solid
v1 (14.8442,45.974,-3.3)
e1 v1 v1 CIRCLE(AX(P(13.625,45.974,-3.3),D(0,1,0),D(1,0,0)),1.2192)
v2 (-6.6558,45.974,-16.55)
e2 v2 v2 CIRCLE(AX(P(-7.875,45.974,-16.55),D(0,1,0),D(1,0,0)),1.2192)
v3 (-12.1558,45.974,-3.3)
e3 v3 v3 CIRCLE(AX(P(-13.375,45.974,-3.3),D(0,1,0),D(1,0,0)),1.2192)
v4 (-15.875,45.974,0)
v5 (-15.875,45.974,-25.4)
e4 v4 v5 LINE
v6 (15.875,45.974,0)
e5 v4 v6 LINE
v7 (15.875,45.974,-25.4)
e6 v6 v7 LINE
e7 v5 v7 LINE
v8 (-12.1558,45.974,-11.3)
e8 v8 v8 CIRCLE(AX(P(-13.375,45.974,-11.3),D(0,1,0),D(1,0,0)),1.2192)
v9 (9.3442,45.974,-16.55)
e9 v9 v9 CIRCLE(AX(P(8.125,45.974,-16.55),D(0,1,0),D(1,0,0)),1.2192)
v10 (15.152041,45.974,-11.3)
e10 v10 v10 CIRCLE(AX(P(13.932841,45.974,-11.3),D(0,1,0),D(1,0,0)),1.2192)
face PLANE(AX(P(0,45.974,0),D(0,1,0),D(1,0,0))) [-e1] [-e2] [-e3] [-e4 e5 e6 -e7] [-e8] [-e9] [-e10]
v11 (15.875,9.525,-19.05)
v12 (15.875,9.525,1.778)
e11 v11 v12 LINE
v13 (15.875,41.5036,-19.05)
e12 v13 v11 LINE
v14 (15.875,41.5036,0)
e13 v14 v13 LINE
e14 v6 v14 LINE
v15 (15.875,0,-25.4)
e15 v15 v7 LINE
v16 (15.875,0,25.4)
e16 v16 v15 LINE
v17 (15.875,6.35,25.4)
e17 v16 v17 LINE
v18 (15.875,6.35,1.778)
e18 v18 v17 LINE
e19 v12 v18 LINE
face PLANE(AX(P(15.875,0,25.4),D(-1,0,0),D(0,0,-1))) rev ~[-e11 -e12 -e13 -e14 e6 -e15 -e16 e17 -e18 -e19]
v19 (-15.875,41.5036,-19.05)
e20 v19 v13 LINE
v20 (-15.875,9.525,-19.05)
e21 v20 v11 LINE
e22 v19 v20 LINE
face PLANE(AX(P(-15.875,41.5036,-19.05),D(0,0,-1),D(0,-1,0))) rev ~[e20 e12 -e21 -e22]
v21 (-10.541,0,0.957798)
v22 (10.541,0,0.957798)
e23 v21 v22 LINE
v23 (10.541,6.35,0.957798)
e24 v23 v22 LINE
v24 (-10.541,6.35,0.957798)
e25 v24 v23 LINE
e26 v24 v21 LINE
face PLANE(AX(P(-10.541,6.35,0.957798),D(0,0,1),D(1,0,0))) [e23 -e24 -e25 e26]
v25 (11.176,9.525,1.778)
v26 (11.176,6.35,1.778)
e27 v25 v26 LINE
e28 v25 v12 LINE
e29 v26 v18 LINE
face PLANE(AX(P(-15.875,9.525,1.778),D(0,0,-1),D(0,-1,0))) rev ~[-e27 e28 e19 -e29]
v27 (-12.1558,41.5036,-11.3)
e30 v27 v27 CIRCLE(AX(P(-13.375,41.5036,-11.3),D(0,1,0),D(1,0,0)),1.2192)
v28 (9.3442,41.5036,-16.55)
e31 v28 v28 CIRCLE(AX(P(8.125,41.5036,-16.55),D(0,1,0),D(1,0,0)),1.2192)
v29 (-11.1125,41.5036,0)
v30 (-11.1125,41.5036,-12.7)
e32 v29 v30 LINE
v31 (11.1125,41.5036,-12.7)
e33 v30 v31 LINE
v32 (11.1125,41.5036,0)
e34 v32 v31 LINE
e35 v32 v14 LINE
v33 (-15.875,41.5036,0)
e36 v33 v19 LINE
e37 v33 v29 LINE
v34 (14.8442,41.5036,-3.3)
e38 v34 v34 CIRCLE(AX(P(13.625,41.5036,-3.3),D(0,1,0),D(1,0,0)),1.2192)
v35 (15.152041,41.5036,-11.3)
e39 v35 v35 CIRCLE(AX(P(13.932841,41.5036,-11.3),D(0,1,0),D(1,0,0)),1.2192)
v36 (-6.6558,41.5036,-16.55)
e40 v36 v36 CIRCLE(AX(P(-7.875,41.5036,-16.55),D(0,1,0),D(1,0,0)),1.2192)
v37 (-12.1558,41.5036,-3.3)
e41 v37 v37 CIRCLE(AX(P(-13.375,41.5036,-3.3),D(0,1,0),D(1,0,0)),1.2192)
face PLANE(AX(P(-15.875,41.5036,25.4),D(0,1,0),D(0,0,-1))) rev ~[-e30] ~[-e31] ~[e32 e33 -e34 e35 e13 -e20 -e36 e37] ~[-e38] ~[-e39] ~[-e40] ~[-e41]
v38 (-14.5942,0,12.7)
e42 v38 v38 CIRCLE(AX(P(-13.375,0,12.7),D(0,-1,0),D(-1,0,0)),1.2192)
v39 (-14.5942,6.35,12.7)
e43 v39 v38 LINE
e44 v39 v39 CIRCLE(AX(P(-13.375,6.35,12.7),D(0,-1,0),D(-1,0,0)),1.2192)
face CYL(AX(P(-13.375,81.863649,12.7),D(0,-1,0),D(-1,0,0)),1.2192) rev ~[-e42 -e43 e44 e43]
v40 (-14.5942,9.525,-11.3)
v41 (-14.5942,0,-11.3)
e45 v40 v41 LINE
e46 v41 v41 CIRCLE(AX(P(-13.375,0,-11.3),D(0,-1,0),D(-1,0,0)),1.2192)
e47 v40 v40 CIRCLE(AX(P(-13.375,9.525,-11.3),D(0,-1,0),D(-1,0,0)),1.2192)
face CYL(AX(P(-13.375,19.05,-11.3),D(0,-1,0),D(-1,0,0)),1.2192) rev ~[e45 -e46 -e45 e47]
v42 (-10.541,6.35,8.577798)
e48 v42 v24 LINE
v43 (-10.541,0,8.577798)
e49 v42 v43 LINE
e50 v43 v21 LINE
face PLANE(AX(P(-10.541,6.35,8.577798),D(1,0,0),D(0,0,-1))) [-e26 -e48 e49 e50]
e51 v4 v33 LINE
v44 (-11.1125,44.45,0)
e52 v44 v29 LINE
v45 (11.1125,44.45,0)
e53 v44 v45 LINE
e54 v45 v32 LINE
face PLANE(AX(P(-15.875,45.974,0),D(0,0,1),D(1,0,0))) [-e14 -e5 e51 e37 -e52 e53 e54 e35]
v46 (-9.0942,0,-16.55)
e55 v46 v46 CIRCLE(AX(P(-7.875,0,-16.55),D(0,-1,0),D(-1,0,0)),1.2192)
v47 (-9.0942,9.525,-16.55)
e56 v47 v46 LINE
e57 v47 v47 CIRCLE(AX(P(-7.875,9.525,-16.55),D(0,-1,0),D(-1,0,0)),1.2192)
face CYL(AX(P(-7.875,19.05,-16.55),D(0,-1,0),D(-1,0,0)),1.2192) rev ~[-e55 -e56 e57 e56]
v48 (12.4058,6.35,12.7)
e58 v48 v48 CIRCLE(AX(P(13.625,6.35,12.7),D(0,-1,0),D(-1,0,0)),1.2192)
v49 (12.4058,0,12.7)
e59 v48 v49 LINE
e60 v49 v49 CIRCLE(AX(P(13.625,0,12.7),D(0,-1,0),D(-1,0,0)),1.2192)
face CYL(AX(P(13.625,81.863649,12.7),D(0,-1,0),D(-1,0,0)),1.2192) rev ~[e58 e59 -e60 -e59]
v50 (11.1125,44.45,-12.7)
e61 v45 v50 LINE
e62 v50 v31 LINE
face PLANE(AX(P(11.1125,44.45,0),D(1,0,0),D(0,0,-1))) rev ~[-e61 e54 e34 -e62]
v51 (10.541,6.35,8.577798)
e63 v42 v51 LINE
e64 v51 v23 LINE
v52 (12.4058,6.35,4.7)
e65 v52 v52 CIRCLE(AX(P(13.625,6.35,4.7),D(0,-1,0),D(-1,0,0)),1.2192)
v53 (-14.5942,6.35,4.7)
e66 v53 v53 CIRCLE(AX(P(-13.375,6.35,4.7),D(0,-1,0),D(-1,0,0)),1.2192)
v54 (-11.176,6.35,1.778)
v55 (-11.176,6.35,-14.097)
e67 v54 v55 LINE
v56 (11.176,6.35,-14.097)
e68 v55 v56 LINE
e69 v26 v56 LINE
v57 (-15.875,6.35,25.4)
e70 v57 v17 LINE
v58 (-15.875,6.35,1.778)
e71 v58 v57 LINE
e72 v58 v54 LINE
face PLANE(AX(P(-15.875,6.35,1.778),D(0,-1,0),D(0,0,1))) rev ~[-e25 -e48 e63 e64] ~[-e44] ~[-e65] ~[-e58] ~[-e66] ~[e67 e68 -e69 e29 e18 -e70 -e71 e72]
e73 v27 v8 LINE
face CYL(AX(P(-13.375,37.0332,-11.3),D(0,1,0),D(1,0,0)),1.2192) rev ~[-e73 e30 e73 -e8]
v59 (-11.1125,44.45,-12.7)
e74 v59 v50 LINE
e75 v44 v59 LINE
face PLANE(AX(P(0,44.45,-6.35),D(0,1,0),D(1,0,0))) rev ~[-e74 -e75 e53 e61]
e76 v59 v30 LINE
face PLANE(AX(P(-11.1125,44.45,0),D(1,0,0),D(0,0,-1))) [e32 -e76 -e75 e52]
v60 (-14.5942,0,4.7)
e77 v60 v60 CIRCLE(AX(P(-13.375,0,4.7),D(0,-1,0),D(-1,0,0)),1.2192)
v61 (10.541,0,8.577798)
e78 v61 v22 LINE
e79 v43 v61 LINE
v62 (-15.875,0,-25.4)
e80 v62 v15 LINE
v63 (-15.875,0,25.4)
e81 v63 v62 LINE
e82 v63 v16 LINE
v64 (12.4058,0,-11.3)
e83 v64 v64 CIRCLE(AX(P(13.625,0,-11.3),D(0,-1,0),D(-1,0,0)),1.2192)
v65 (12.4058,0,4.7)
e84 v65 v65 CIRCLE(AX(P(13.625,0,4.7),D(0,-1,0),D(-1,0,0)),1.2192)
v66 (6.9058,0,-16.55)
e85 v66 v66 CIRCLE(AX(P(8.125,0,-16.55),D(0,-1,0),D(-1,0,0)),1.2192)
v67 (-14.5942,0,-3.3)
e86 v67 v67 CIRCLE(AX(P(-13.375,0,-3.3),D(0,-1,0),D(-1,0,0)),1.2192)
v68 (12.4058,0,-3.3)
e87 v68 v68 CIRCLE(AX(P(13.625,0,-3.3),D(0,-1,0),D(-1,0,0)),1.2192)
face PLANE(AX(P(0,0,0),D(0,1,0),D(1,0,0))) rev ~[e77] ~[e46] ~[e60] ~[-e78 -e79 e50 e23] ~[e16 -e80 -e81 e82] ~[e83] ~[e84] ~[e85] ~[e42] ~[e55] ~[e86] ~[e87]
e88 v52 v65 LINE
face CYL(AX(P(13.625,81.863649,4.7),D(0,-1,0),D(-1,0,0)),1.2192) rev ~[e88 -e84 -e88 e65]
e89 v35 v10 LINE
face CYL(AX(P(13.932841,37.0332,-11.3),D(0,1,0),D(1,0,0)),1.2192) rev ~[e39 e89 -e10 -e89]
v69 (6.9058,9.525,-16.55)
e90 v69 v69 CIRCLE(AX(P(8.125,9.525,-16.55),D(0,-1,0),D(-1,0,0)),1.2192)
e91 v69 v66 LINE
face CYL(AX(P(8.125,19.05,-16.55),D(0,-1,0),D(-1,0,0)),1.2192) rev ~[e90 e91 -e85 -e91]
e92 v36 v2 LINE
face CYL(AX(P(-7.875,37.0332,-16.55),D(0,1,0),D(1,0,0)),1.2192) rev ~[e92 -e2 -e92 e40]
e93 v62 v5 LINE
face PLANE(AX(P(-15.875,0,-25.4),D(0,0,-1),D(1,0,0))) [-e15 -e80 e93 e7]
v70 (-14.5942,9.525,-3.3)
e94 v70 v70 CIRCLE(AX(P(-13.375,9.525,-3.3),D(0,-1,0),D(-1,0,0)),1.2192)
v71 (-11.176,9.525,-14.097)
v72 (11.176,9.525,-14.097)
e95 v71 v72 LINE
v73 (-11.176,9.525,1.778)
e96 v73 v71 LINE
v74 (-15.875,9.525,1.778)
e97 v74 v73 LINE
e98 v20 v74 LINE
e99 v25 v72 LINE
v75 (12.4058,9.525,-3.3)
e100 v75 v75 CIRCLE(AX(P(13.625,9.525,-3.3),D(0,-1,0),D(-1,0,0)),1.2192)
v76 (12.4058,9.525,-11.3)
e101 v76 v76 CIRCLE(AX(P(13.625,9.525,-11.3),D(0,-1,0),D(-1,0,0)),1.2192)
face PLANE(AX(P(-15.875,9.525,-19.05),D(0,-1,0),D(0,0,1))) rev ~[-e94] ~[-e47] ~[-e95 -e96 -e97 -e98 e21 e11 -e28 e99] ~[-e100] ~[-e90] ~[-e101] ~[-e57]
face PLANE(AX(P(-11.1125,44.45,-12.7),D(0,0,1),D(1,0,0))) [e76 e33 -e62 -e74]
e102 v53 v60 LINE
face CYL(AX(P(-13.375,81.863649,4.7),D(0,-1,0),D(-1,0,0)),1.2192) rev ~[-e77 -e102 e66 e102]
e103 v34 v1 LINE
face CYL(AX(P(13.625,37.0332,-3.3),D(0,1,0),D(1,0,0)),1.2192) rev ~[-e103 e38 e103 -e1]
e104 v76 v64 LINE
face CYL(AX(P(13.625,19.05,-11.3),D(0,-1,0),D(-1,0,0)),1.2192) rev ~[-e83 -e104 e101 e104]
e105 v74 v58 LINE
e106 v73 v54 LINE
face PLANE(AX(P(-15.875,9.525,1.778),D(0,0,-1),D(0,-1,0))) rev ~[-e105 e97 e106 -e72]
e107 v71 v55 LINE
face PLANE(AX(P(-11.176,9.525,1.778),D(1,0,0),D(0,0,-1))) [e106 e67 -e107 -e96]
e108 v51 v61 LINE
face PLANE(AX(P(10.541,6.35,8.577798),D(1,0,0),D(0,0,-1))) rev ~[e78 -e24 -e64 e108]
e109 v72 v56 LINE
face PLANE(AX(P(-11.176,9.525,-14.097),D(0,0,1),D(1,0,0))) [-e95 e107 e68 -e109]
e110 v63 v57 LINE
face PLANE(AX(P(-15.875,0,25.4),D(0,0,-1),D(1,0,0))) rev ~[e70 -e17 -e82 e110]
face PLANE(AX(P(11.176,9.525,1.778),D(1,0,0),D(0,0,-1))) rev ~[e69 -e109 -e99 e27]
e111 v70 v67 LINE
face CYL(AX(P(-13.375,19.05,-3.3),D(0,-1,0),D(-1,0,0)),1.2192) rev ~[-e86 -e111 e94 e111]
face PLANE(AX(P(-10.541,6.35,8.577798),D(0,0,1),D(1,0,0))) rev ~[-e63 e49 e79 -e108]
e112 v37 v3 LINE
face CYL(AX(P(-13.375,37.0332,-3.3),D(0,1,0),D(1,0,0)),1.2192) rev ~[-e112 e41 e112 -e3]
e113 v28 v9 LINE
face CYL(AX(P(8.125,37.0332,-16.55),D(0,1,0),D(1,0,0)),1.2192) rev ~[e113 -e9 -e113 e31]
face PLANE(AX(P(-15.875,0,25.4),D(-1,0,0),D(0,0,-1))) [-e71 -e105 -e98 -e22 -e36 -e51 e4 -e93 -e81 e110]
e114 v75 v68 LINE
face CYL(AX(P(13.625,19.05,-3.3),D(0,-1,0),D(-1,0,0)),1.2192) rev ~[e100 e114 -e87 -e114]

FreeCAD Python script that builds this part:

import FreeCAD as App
import Part
import Sketcher

V = App.Vector
Q = App.Units.Quantity

doc = App.newDocument("Part")
body = doc.addObject("PartDesign::Body", "Body")

sketch1 = body.newObject("Sketcher::SketchObject", "Sketch")
sketch1.AttachmentSupport = (doc.getObject("XZ_Plane"), [""])
sketch1.MapMode = "FlatFace"
sketch1.addGeometry([
    Part.LineSegment(V(-15.875, -25.4, 0), V(-15.875, 25.4, 0)),
    Part.LineSegment(V(-15.875, 25.4, 0), V(15.875, 25.4, 0)),
    Part.LineSegment(V(15.875, 25.4, 0), V(15.875, -25.4, 0)),
    Part.LineSegment(V(15.875, -25.4, 0), V(-15.875, -25.4, 0)),
], False)
sketch1.addConstraint([
    Sketcher.Constraint("Coincident", 0, 2, 1, 1),
    Sketcher.Constraint("Coincident", 1, 2, 2, 1),
    Sketcher.Constraint("Coincident", 2, 2, 3, 1),
    Sketcher.Constraint("Coincident", 3, 2, 0, 1),
    Sketcher.Constraint("Vertical", 0),
    Sketcher.Constraint("Horizontal", 1),
    Sketcher.Constraint("Vertical", 2),
    Sketcher.Constraint("Horizontal", 3),
    Sketcher.Constraint("Symmetric", 0, 2, 2, 2, -1, 1),
    Sketcher.Constraint("DistanceY", 0, 1, 0, 2, Q("2 in")),
    Sketcher.Constraint("DistanceX", 1, 1, 1, 2, Q("1.25 in")),
])
pad1 = body.newObject("PartDesign::Pad", "Pad")
pad1.Profile = sketch1
pad1.Length = Q("1.81 in")
pad1.Reversed = True

sketch2 = body.newObject("Sketcher::SketchObject", "Sketch001")
sketch2.AttachmentSupport = (doc.getObject("YZ_Plane"), [""])
sketch2.MapMode = "FlatFace"
sketch2.AttachmentOffset = App.Placement(V(0, 0, -0.625 * 25.4), App.Rotation())
sketch2.addGeometry([
    Part.LineSegment(V(6.35, 1.778, 0), V(6.35, 25.4, 0)),
    Part.LineSegment(V(6.35, 25.4, 0), V(41.5036, 25.4, 0)),
    Part.LineSegment(V(41.5036, 25.4, 0), V(41.5036, -19.05, 0)),
    Part.LineSegment(V(41.5036, -19.05, 0), V(9.525, -19.05, 0)),
    Part.LineSegment(V(9.525, -19.05, 0), V(9.525, 1.778, 0)),
    Part.LineSegment(V(9.525, 1.778, 0), V(6.35, 1.778, 0)),
], False)
sketch2.addConstraint([
    Sketcher.Constraint("Coincident", 0, 2, 1, 1),
    Sketcher.Constraint("Coincident", 1, 2, 2, 1),
    Sketcher.Constraint("Coincident", 2, 2, 3, 1),
    Sketcher.Constraint("Coincident", 3, 2, 4, 1),
    Sketcher.Constraint("Coincident", 4, 2, 5, 1),
    Sketcher.Constraint("Coincident", 5, 2, 0, 1),
    Sketcher.Constraint("Vertical", 0),
    Sketcher.Constraint("Horizontal", 1),
    Sketcher.Constraint("Vertical", 2),
    Sketcher.Constraint("Horizontal", 3),
    Sketcher.Constraint("Vertical", 4),
    Sketcher.Constraint("Horizontal", 5),
    Sketcher.Constraint("DistanceY", -1, 1, 0, 2, Q("1 in")),
    Sketcher.Constraint("DistanceY", 0, 1, 0, 2, Q("0.93 in")),
    Sketcher.Constraint("DistanceY", 2, 2, 2, 1, Q("1.75 in")),
    Sketcher.Constraint("DistanceX", 1, 1, 1, 2, Q("1.384 in")),
    Sketcher.Constraint("DistanceX", 3, 2, 3, 1, Q("1.259 in")),
    Sketcher.Constraint("DistanceX", -1, 1, 0, 2, Q("0.25 in")),
])
pocket1 = body.newObject("PartDesign::Pocket", "Pocket")
pocket1.Profile = sketch2
pocket1.Type = "ThroughAll"
pocket1.Reversed = True

sketch3 = body.newObject("Sketcher::SketchObject", "Sketch002")
sketch3.AttachmentSupport = (doc.getObject("XZ_Plane"), [""])
sketch3.MapMode = "FlatFace"
sketch3.AttachmentOffset = App.Placement(V(0, 0, -0.375 * 25.4), App.Rotation())
sketch3.addGeometry([
    Part.LineSegment(V(-11.176, -14.097, 0), V(-11.176, 1.778, 0)),
    Part.LineSegment(V(-11.176, 1.778, 0), V(11.176, 1.778, 0)),
    Part.LineSegment(V(11.176, 1.778, 0), V(11.176, -14.097, 0)),
    Part.LineSegment(V(11.176, -14.097, 0), V(-11.176, -14.097, 0)),
], False)
sketch3.addConstraint([
    Sketcher.Constraint("Coincident", 0, 2, 1, 1),
    Sketcher.Constraint("Coincident", 1, 2, 2, 1),
    Sketcher.Constraint("Coincident", 2, 2, 3, 1),
    Sketcher.Constraint("Coincident", 3, 2, 0, 1),
    Sketcher.Constraint("Vertical", 0),
    Sketcher.Constraint("Horizontal", 1),
    Sketcher.Constraint("Vertical", 2),
    Sketcher.Constraint("Horizontal", 3),
    Sketcher.Constraint("DistanceX", 1, 1, 1, 2, Q("0.88 in")),
    Sketcher.Constraint("DistanceY", 0, 1, 0, 2, Q("0.625 in")),
    Sketcher.Constraint("DistanceX", 0, 2, -1, 1, Q("0.44 in")),
    Sketcher.Constraint("DistanceY", -1, 1, 0, 2, Q("0.07 in")),
])
pocket2 = body.newObject("PartDesign::Pocket", "Pocket001")
pocket2.Profile = sketch3
pocket2.Length = Q("0.125 in")
pocket2.Reversed = True

sketch4 = body.newObject("Sketcher::SketchObject", "Sketch003")
sketch4.AttachmentSupport = (doc.getObject("XZ_Plane"), [""])
sketch4.MapMode = "FlatFace"
sketch4.AttachmentOffset = App.Placement(V(0, 0, -1.81 * 25.4), App.Rotation())
sketch4.addGeometry([
    Part.LineSegment(V(-15.875, 0, 0), V(-15.875, 25.4, 0)),
    Part.LineSegment(V(-15.875, 25.4, 0), V(15.875, 25.4, 0)),
    Part.LineSegment(V(15.875, 25.4, 0), V(15.875, 0, 0)),
    Part.LineSegment(V(15.875, 0, 0), V(-15.875, 0, 0)),
], False)
sketch4.addConstraint([
    Sketcher.Constraint("Coincident", 0, 2, 1, 1),
    Sketcher.Constraint("Coincident", 1, 2, 2, 1),
    Sketcher.Constraint("Coincident", 2, 2, 3, 1),
    Sketcher.Constraint("Coincident", 3, 2, 0, 1),
    Sketcher.Constraint("Vertical", 0),
    Sketcher.Constraint("Horizontal", 1),
    Sketcher.Constraint("Vertical", 2),
    Sketcher.Constraint("Horizontal", 3),
    Sketcher.Constraint("Symmetric", 2, 2, 3, 2, -1, 1),
    Sketcher.Constraint("DistanceY", 0, 1, 0, 2, Q("1 in")),
    Sketcher.Constraint("DistanceX", 1, 1, 1, 2, Q("1.25 in")),
])
pocket3 = body.newObject("PartDesign::Pocket", "Pocket002")
pocket3.Profile = sketch4
pocket3.Length = Q("0.176 in")
pocket3.Reversed = True

sketch5 = body.newObject("Sketcher::SketchObject", "Sketch004")
sketch5.AttachmentSupport = (doc.getObject("XZ_Plane"), [""])
sketch5.MapMode = "FlatFace"
sketch5.AttachmentOffset = App.Placement(V(0, 0, -1.75 * 25.4), App.Rotation())
sketch5.addGeometry([
    Part.LineSegment(V(-11.1125, -12.7, 0), V(-11.1125, 0, 0)),
    Part.LineSegment(V(-11.1125, 0, 0), V(11.1125, 0, 0)),
    Part.LineSegment(V(11.1125, 0, 0), V(11.1125, -12.7, 0)),
    Part.LineSegment(V(11.1125, -12.7, 0), V(-11.1125, -12.7, 0)),
], False)
sketch5.addConstraint([
    Sketcher.Constraint("Coincident", 0, 2, 1, 1),
    Sketcher.Constraint("Coincident", 1, 2, 2, 1),
    Sketcher.Constraint("Coincident", 2, 2, 3, 1),
    Sketcher.Constraint("Coincident", 3, 2, 0, 1),
    Sketcher.Constraint("Vertical", 0),
    Sketcher.Constraint("Horizontal", 1),
    Sketcher.Constraint("Vertical", 2),
    Sketcher.Constraint("Horizontal", 3),
    Sketcher.Constraint("Symmetric", 0, 2, 1, 2, -1, 1),
    Sketcher.Constraint("DistanceY", 0, 1, 0, 2, Q("0.5 in")),
    Sketcher.Constraint("DistanceX", 1, 1, 1, 2, Q("0.875 in")),
])
pocket4 = body.newObject("PartDesign::Pocket", "Pocket003")
pocket4.Profile = sketch5
pocket4.Length = Q("0.116 in")
pocket4.Reversed = True

sketch6 = body.newObject("Sketcher::SketchObject", "Sketch005")
sketch6.AttachmentSupport = (doc.getObject("XZ_Plane"), [""])
sketch6.MapMode = "FlatFace"
sketch6.AttachmentOffset = App.Placement(V(0, 0, -0.375 * 25.4), App.Rotation())
sketch6.addGeometry([
    Part.Circle(V(-13.375, -11.3, 0), V(0, 0, 1), 1.2192),
    Part.Circle(V(-13.375, -3.3, 0), V(0, 0, 1), 1.2192),
    Part.Circle(V(-7.875, -16.55, 0), V(0, 0, 1), 1.2192),
    Part.Circle(V(8.125, -16.55, 0), V(0, 0, 1), 1.2192),
    Part.Circle(V(13.625, -3.3, 0), V(0, 0, 1), 1.2192),
    Part.Circle(V(13.625, -11.3, 0), V(0, 0, 1), 1.2192),
], False)
sketch6.addConstraint([
    Sketcher.Constraint("Equal", 0, 1),
    Sketcher.Constraint("Equal", 1, 2),
    Sketcher.Constraint("Equal", 2, 3),
    Sketcher.Constraint("Equal", 3, 4),
    Sketcher.Constraint("Equal", 4, 5),
    Sketcher.Constraint("Horizontal", 2, 3, 3, 3),
    Sketcher.Constraint("Horizontal", 1, 3, 4, 3),
    Sketcher.Constraint("Horizontal", 0, 3, 5, 3),
    Sketcher.Constraint("Vertical", 0, 3, 1, 3),
    Sketcher.Constraint("Vertical", 4, 3, 5, 3),
    Sketcher.Constraint("Diameter", 0, Q("0.096 in")),
    Sketcher.Constraint("DistanceX", 0, 3, -1, 1, 13.375),
    Sketcher.Constraint("DistanceY", 0, 3, -1, 1, 11.3),
    Sketcher.Constraint("DistanceY", 1, 3, -1, 1, 3.3),
    Sketcher.Constraint("DistanceX", 2, 3, -1, 1, 7.875),
    Sketcher.Constraint("DistanceY", 2, 3, -1, 1, 16.55),
    Sketcher.Constraint("DistanceX", -1, 1, 3, 3, 8.125),
    Sketcher.Constraint("DistanceX", -1, 1, 4, 3, 13.625),
])
doc.recompute()
hole = body.newObject("PartDesign::Hole", "Hole")
hole.Profile = sketch6
hole.ThreadType = "None"
hole.Diameter = Q("0.096 in")
hole.DepthType = "Dimension"
hole.Depth = Q("0.375 in")
hole.DrillPoint = "Flat"
hole.Reversed = True

sketch7 = body.newObject("Sketcher::SketchObject", "Sketch006")
sketch7.AttachmentSupport = (doc.getObject("XZ_Plane"), [""])
sketch7.MapMode = "FlatFace"
sketch7.AttachmentOffset = App.Placement(V(0, 0, -1.634 * 25.4), App.Rotation())
sketch7.addGeometry([
    Part.Circle(V(-13.375, -11.3, 0), V(0, 0, 1), 1.2192),
    Part.Circle(V(-7.875, -16.55, 0), V(0, 0, 1), 1.2192),
    Part.Circle(V(8.125, -16.55, 0), V(0, 0, 1), 1.2192),
    Part.Circle(V(13.932841, -11.3, 0), V(0, 0, 1), 1.2192),
    Part.Circle(V(13.625, -3.3, 0), V(0, 0, 1), 1.2192),
    Part.Circle(V(-13.375, -3.3, 0), V(0, 0, 1), 1.2192),
], False)
sketch7.addConstraint([
    Sketcher.Constraint("Equal", 0, 1),
    Sketcher.Constraint("Equal", 1, 2),
    Sketcher.Constraint("Equal", 2, 3),
    Sketcher.Constraint("Equal", 3, 4),
    Sketcher.Constraint("Equal", 4, 5),
    Sketcher.Constraint("Horizontal", 1, 3, 2, 3),
    Sketcher.Constraint("Horizontal", 0, 3, 3, 3),
    Sketcher.Constraint("Horizontal", 4, 3, 5, 3),
    Sketcher.Constraint("Vertical", 0, 3, 5, 3),
    Sketcher.Constraint("Diameter", 0, Q("0.096 in")),
    Sketcher.Constraint("DistanceX", 0, 3, -1, 1, 13.375),
    Sketcher.Constraint("DistanceY", 0, 3, -1, 1, 11.3),
    Sketcher.Constraint("DistanceX", 1, 3, -1, 1, 7.875),
    Sketcher.Constraint("DistanceY", 1, 3, -1, 1, 16.55),
    Sketcher.Constraint("DistanceX", -1, 1, 2, 3, 8.125),
    Sketcher.Constraint("DistanceX", -1, 1, 4, 3, 13.625),
    Sketcher.Constraint("DistanceY", 4, 3, -1, 1, 3.3),
    Sketcher.Constraint("DistanceX", -1, 1, 3, 3, 13.932841),
])
doc.recompute()
hole2 = body.newObject("PartDesign::Hole", "Hole001")
hole2.Profile = sketch7
hole2.ThreadType = "None"
hole2.Diameter = Q("0.096 in")
hole2.DepthType = "Dimension"
hole2.Depth = Q("0.176 in")
hole2.DrillPoint = "Flat"

sketch8 = body.newObject("Sketcher::SketchObject", "Sketch007")
sketch8.AttachmentSupport = (doc.getObject("XZ_Plane"), [""])
sketch8.MapMode = "FlatFace"
sketch8.AttachmentOffset = App.Placement(V(0, 0, -0.25 * 25.4), App.Rotation())
sketch8.addGeometry([
    Part.LineSegment(V(-10.541, 0.957798, 0), V(-10.541, 8.577798, 0)),
    Part.LineSegment(V(-10.541, 8.577798, 0), V(10.541, 8.577798, 0)),
    Part.LineSegment(V(10.541, 8.577798, 0), V(10.541, 0.957798, 0)),
    Part.LineSegment(V(10.541, 0.957798, 0), V(-10.541, 0.957798, 0)),
], False)
sketch8.addConstraint([
    Sketcher.Constraint("Coincident", 0, 2, 1, 1),
    Sketcher.Constraint("Coincident", 1, 2, 2, 1),
    Sketcher.Constraint("Coincident", 2, 2, 3, 1),
    Sketcher.Constraint("Coincident", 3, 2, 0, 1),
    Sketcher.Constraint("Vertical", 0),
    Sketcher.Constraint("Horizontal", 1),
    Sketcher.Constraint("Vertical", 2),
    Sketcher.Constraint("Horizontal", 3),
    Sketcher.Constraint("DistanceY", 0, 1, 0, 2, Q("0.3 in")),
    Sketcher.Constraint("DistanceX", 1, 1, 1, 2, Q("0.83 in")),
    Sketcher.Constraint("DistanceX", 0, 2, -1, 1, Q("0.415 in")),
    Sketcher.Constraint("DistanceY", -1, 1, 0, 2, 8.577798),
])
pocket5 = body.newObject("PartDesign::Pocket", "Pocket004")
pocket5.Profile = sketch8
pocket5.Length = Q("0.25 in")
pocket5.Reversed = True

sketch9 = body.newObject("Sketcher::SketchObject", "Sketch008")
sketch9.AttachmentSupport = (doc.getObject("XZ_Plane"), [""])
sketch9.MapMode = "FlatFace"
sketch9.AttachmentOffset = App.Placement(V(0, 0, -0.25 * 25.4), App.Rotation())
sketch9.addGeometry([
    Part.Circle(V(-13.375, 4.7, 0), V(0, 0, 1), 1.2192),
    Part.Circle(V(-13.375, 12.7, 0), V(0, 0, 1), 1.2192),
    Part.Circle(V(13.625, 12.7, 0), V(0, 0, 1), 1.2192),
    Part.Circle(V(13.625, 4.7, 0), V(0, 0, 1), 1.2192),
], False)
sketch9.addConstraint([
    Sketcher.Constraint("Equal", 0, 1),
    Sketcher.Constraint("Equal", 1, 2),
    Sketcher.Constraint("Equal", 2, 3),
    Sketcher.Constraint("Horizontal", 1, 3, 2, 3),
    Sketcher.Constraint("Horizontal", 0, 3, 3, 3),
    Sketcher.Constraint("Vertical", 0, 3, 1, 3),
    Sketcher.Constraint("Vertical", 2, 3, 3, 3),
    Sketcher.Constraint("Diameter", 0, Q("0.096 in")),
    Sketcher.Constraint("DistanceY", -1, 1, 1, 3, Q("0.5 in")),
    Sketcher.Constraint("DistanceX", 0, 3, -1, 1, 13.375),
    Sketcher.Constraint("DistanceY", -1, 1, 0, 3, 4.7),
    Sketcher.Constraint("DistanceX", -1, 1, 2, 3, 13.625),
])
doc.recompute()
hole3 = body.newObject("PartDesign::Hole", "Hole002")
hole3.Profile = sketch9
hole3.ThreadType = "None"
hole3.Diameter = Q("0.096 in")
hole3.DepthType = "ThroughAll"
hole3.Reversed = True

doc.recompute()
